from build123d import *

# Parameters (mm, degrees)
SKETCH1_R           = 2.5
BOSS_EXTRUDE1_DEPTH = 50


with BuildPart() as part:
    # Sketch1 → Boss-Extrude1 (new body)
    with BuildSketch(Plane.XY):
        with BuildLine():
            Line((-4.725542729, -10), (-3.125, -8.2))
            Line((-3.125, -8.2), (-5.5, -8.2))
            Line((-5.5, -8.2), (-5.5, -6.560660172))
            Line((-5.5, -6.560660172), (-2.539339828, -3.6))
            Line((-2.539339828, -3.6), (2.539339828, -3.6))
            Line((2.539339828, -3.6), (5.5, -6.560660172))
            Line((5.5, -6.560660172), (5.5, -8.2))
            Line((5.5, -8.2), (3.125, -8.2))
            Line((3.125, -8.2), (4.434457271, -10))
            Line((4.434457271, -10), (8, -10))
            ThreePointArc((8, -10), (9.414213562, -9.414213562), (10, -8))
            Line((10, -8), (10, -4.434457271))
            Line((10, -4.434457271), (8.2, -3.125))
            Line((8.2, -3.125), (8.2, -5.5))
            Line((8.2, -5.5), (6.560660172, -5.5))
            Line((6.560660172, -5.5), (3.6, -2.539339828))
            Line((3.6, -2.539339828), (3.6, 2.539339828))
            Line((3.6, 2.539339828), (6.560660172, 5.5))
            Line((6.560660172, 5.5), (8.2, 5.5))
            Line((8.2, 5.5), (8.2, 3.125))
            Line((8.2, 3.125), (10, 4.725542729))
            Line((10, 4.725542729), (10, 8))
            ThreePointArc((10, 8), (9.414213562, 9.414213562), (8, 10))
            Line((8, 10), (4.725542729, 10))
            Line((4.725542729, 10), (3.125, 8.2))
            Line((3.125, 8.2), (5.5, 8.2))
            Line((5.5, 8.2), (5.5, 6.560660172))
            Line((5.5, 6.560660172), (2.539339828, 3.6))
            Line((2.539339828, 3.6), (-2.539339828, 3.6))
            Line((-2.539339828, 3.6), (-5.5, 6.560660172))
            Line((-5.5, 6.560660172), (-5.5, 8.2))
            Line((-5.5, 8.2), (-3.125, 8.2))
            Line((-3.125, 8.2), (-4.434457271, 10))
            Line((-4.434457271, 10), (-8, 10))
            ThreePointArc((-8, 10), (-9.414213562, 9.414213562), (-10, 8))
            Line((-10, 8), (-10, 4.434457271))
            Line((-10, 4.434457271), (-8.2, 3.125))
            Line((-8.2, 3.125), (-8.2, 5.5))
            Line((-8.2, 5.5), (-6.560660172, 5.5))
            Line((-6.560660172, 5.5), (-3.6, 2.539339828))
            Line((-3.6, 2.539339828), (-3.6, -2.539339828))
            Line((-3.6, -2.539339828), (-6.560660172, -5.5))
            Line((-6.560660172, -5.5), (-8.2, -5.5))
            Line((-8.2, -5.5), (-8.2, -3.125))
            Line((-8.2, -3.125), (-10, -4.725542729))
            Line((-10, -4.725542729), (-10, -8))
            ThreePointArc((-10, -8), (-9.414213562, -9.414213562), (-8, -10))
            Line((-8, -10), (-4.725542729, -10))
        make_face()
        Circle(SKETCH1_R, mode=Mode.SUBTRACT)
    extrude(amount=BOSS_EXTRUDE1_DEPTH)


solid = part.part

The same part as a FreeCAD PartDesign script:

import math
import FreeCAD as App
import Part
import Sketcher
Q = App.Units.Quantity

doc = App.newDocument("Part")
body = doc.addObject("PartDesign::Body", "Body")

sketch1 = doc.addObject("Sketcher::SketchObject", "Sketch")
body.addObject(sketch1)
sketch1.AttachmentSupport = (doc.XY_Plane, [""])
sketch1.MapMode = "FlatFace"
sketch1.addGeometry([
    Part.LineSegment(App.Vector(-4.7, -10, 0), App.Vector(-3.1, -8.2, 0)),
    Part.LineSegment(App.Vector(-3.1, -8.2, 0), App.Vector(-5.5, -8.2, 0)),
    Part.LineSegment(App.Vector(-5.5, -8.2, 0), App.Vector(-5.5, -6.6, 0)),
    Part.LineSegment(App.Vector(-5.5, -6.6, 0), App.Vector(-2.5, -3.6, 0)),
    Part.LineSegment(App.Vector(-2.5, -3.6, 0), App.Vector(2.5, -3.6, 0)),
    Part.LineSegment(App.Vector(2.5, -3.6, 0), App.Vector(5.5, -6.6, 0)),
    Part.LineSegment(App.Vector(5.5, -6.6, 0), App.Vector(5.5, -8.2, 0)),
    Part.LineSegment(App.Vector(5.5, -8.2, 0), App.Vector(3.1, -8.2, 0)),
    Part.LineSegment(App.Vector(3.1, -8.2, 0), App.Vector(4.4, -10, 0)),
    Part.LineSegment(App.Vector(4.4, -10, 0), App.Vector(8, -10, 0)),
    Part.ArcOfCircle(Part.Circle(App.Vector(8, -8, 0), App.Vector(0, 0, 1), 2), math.radians(-90), math.radians(0)),
    Part.LineSegment(App.Vector(10, -8, 0), App.Vector(10, -4.4, 0)),
    Part.LineSegment(App.Vector(10, -4.4, 0), App.Vector(8.2, -3.1, 0)),
    Part.LineSegment(App.Vector(8.2, -3.1, 0), App.Vector(8.2, -5.5, 0)),
    Part.LineSegment(App.Vector(8.2, -5.5, 0), App.Vector(6.6, -5.5, 0)),
    Part.LineSegment(App.Vector(6.6, -5.5, 0), App.Vector(3.6, -2.5, 0)),
    Part.LineSegment(App.Vector(3.6, -2.5, 0), App.Vector(3.6, 2.5, 0)),
    Part.LineSegment(App.Vector(3.6, 2.5, 0), App.Vector(6.6, 5.5, 0)),
    Part.LineSegment(App.Vector(6.6, 5.5, 0), App.Vector(8.2, 5.5, 0)),
    Part.LineSegment(App.Vector(8.2, 5.5, 0), App.Vector(8.2, 3.1, 0)),
    Part.LineSegment(App.Vector(8.2, 3.1, 0), App.Vector(10, 4.7, 0)),
    Part.LineSegment(App.Vector(10, 4.7, 0), App.Vector(10, 8, 0)),
    Part.ArcOfCircle(Part.Circle(App.Vector(8, 8, 0), App.Vector(0, 0, 1), 2), math.radians(0), math.radians(90)),
    Part.LineSegment(App.Vector(8, 10, 0), App.Vector(4.7, 10, 0)),
    Part.LineSegment(App.Vector(4.7, 10, 0), App.Vector(3.1, 8.2, 0)),
    Part.LineSegment(App.Vector(3.1, 8.2, 0), App.Vector(5.5, 8.2, 0)),
    Part.LineSegment(App.Vector(5.5, 8.2, 0), App.Vector(5.5, 6.6, 0)),
    Part.LineSegment(App.Vector(5.5, 6.6, 0), App.Vector(2.5, 3.6, 0)),
    Part.LineSegment(App.Vector(2.5, 3.6, 0), App.Vector(-2.5, 3.6, 0)),
    Part.LineSegment(App.Vector(-2.5, 3.6, 0), App.Vector(-5.5, 6.6, 0)),
    Part.LineSegment(App.Vector(-5.5, 6.6, 0), App.Vector(-5.5, 8.2, 0)),
    Part.LineSegment(App.Vector(-5.5, 8.2, 0), App.Vector(-3.1, 8.2, 0)),
    Part.LineSegment(App.Vector(-3.1, 8.2, 0), App.Vector(-4.4, 10, 0)),
    Part.LineSegment(App.Vector(-4.4, 10, 0), App.Vector(-8, 10, 0)),
    Part.ArcOfCircle(Part.Circle(App.Vector(-8, 8, 0), App.Vector(0, 0, 1), 2), math.radians(90), math.radians(180)),
    Part.LineSegment(App.Vector(-10, 8, 0), App.Vector(-10, 4.4, 0)),
    Part.LineSegment(App.Vector(-10, 4.4, 0), App.Vector(-8.2, 3.1, 0)),
    Part.LineSegment(App.Vector(-8.2, 3.1, 0), App.Vector(-8.2, 5.5, 0)),
    Part.LineSegment(App.Vector(-8.2, 5.5, 0), App.Vector(-6.6, 5.5, 0)),
    Part.LineSegment(App.Vector(-6.6, 5.5, 0), App.Vector(-3.6, 2.5, 0)),
    Part.LineSegment(App.Vector(-3.6, 2.5, 0), App.Vector(-3.6, -2.5, 0)),
    Part.LineSegment(App.Vector(-3.6, -2.5, 0), App.Vector(-6.6, -5.5, 0)),
    Part.LineSegment(App.Vector(-6.6, -5.5, 0), App.Vector(-8.2, -5.5, 0)),
    Part.LineSegment(App.Vector(-8.2, -5.5, 0), App.Vector(-8.2, -3.1, 0)),
    Part.LineSegment(App.Vector(-8.2, -3.1, 0), App.Vector(-10, -4.7, 0)),
    Part.LineSegment(App.Vector(-10, -4.7, 0), App.Vector(-10, -8, 0)),
    Part.ArcOfCircle(Part.Circle(App.Vector(-8, -8, 0), App.Vector(0, 0, 1), 2), math.radians(-180), math.radians(-90)),
    Part.LineSegment(App.Vector(-8, -10, 0), App.Vector(-4.7, -10, 0)),
    Part.Circle(App.Vector(0, 0, 0), App.Vector(0, 0, 1), 2.5),
], False)
sketch1.addConstraint([
    Sketcher.Constraint("Coincident", 0, 2, 1, 1),
    Sketcher.Constraint("Coincident", 1, 2, 2, 1),
    Sketcher.Constraint("Coincident", 2, 2, 3, 1),
    Sketcher.Constraint("Coincident", 3, 2, 4, 1),
    Sketcher.Constraint("Coincident", 4, 2, 5, 1),
    Sketcher.Constraint("Coincident", 5, 2, 6, 1),
    Sketcher.Constraint("Coincident", 6, 2, 7, 1),
    Sketcher.Constraint("Coincident", 7, 2, 8, 1),
    Sketcher.Constraint("Coincident", 8, 2, 9, 1),
    Sketcher.Constraint("Tangent", 9, 2, 10, 1),
    Sketcher.Constraint("Tangent", 10, 2, 11, 1),
    Sketcher.Constraint("Coincident", 11, 2, 12, 1),
    Sketcher.Constraint("Coincident", 12, 2, 13, 1),
    Sketcher.Constraint("Coincident", 13, 2, 14, 1),
    Sketcher.Constraint("Coincident", 14, 2, 15, 1),
    Sketcher.Constraint("Coincident", 15, 2, 16, 1),
    Sketcher.Constraint("Coincident", 16, 2, 17, 1),
    Sketcher.Constraint("Coincident", 17, 2, 18, 1),
    Sketcher.Constraint("Coincident", 18, 2, 19, 1),
    Sketcher.Constraint("Coincident", 19, 2, 20, 1),
    Sketcher.Constraint("Coincident", 20, 2, 21, 1),
    Sketcher.Constraint("Tangent", 21, 2, 22, 1),
    Sketcher.Constraint("Tangent", 22, 2, 23, 1),
    Sketcher.Constraint("Coincident", 23, 2, 24, 1),
    Sketcher.Constraint("Coincident", 24, 2, 25, 1),
    Sketcher.Constraint("Coincident", 25, 2, 26, 1),
    Sketcher.Constraint("Coincident", 26, 2, 27, 1),
    Sketcher.Constraint("Coincident", 27, 2, 28, 1),
    Sketcher.Constraint("Coincident", 28, 2, 29, 1),
    Sketcher.Constraint("Coincident", 29, 2, 30, 1),
    Sketcher.Constraint("Coincident", 30, 2, 31, 1),
    Sketcher.Constraint("Coincident", 31, 2, 32, 1),
    Sketcher.Constraint("Coincident", 32, 2, 33, 1),
    Sketcher.Constraint("Tangent", 33, 2, 34, 1),
    Sketcher.Constraint("Tangent", 34, 2, 35, 1),
    Sketcher.Constraint("Coincident", 35, 2, 36, 1),
    Sketcher.Constraint("Coincident", 36, 2, 37, 1),
    Sketcher.Constraint("Coincident", 37, 2, 38, 1),
    Sketcher.Constraint("Coincident", 38, 2, 39, 1),
    Sketcher.Constraint("Coincident", 39, 2, 40, 1),
    Sketcher.Constraint("Coincident", 40, 2, 41, 1),
    Sketcher.Constraint("Coincident", 41, 2, 42, 1),
    Sketcher.Constraint("Coincident", 42, 2, 43, 1),
    Sketcher.Constraint("Coincident", 43, 2, 44, 1),
    Sketcher.Constraint("Coincident", 44, 2, 45, 1),
    Sketcher.Constraint("Tangent", 45, 2, 46, 1),
    Sketcher.Constraint("Tangent", 46, 2, 47, 1),
    Sketcher.Constraint("Coincident", 47, 2, 0, 1),
    Sketcher.Constraint("Horizontal", 1),
    Sketcher.Constraint("Vertical", 2),
    Sketcher.Constraint("Horizontal", 4),
    Sketcher.Constraint("Vertical", 6),
    Sketcher.Constraint("Horizontal", 7),
    Sketcher.Constraint("Horizontal", 9),
    Sketcher.Constraint("Vertical", 11),
    Sketcher.Constraint("Vertical", 13),
    Sketcher.Constraint("Horizontal", 14),
    Sketcher.Constraint("Vertical", 16),
    Sketcher.Constraint("Horizontal", 18),
    Sketcher.Constraint("Vertical", 19),
    Sketcher.Constraint("Vertical", 21),
    Sketcher.Constraint("Horizontal", 23),
    Sketcher.Constraint("Horizontal", 25),
    Sketcher.Constraint("Vertical", 26),
    Sketcher.Constraint("Horizontal", 28),
    Sketcher.Constraint("Vertical", 30),
    Sketcher.Constraint("Horizontal", 31),
    Sketcher.Constraint("Horizontal", 33),
    Sketcher.Constraint("Vertical", 35),
    Sketcher.Constraint("Vertical", 37),
    Sketcher.Constraint("Horizontal", 38),
    Sketcher.Constraint("Vertical", 40),
    Sketcher.Constraint("Horizontal", 42),
    Sketcher.Constraint("Vertical", 43),
    Sketcher.Constraint("Vertical", 45),
    Sketcher.Constraint("Horizontal", 47),
    Sketcher.Constraint("Coincident", 48, 3, -1, 1),
    Sketcher.Constraint("Equal", 10, 22),
    Sketcher.Constraint("Equal", 22, 34),
    Sketcher.Constraint("Equal", 34, 46),
    Sketcher.Constraint("Symmetric", 10, 3, 34, 3, -1, 1),
    Sketcher.Constraint("Symmetric", 22, 3, 46, 3, -1, 1),
    Sketcher.Constraint("Symmetric", 0, 2, 24, 2, -1, 1),
    Sketcher.Constraint("Symmetric", 2, 2, 26, 2, -1, 1),
    Sketcher.Constraint("Symmetric", 3, 2, 27, 2, -1, 1),
    Sketcher.Constraint("Symmetric", 5, 2, 29, 2, -1, 1),
    Sketcher.Constraint("Symmetric", 7, 2, 31, 2, -1, 1),
    Sketcher.Constraint("Symmetric", 12, 2, 36, 2, -1, 1),
    Sketcher.Constraint("Symmetric", 14, 2, 38, 2, -1, 1),
    Sketcher.Constraint("Symmetric", 15, 2, 39, 2, -1, 1),
    Sketcher.Constraint("Symmetric", 17, 2, 41, 2, -1, 1),
    Sketcher.Constraint("Symmetric", 19, 2, 43, 2, -1, 1),
    Sketcher.Constraint("Symmetric", 22, 3, 34, 3, -2),
    Sketcher.Constraint("Symmetric", 2, 2, 5, 2, -2),
    Sketcher.Constraint("Symmetric", 0, 2, 7, 2, -2),
    Sketcher.Constraint("Symmetric", 19, 2, 36, 2, -2),
    Sketcher.Constraint("Symmetric", 17, 2, 38, 2, -2),
    Sketcher.Constraint("Perpendicular", 3, 5),
    Sketcher.Constraint("Parallel", 5, 15),
    Sketcher.Constraint("Perpendicular", 15, 17),
    Sketcher.Constraint("Parallel", 0, 24),
    Sketcher.Constraint("Perpendicular", 27, 29),
    Sketcher.Constraint("Parallel", 8, 32),
    Sketcher.Constraint("Parallel", 12, 36),
    Sketcher.Constraint("Perpendicular", 39, 41),
    Sketcher.Constraint("Parallel", 20, 44),
    Sketcher.Constraint("Horizontal", 16, 2, 39, 2),
    Sketcher.Constraint("Equal", 42, 2),
    Sketcher.Constraint("Equal", 33, 11),
    Sketcher.Constraint("Equal", 31, 13),
    Sketcher.Constraint("Equal", 28, 16),
    Sketcher.Constraint("Equal", 47, 21),
    Sketcher.Constraint("Equal", 8, 12),
    Sketcher.Constraint("Equal", 5, 15),
    Sketcher.Constraint("Equal", 0, 20),
    Sketcher.Constraint("Diameter", 48, Q("5 mm")),
    Sketcher.Constraint("Radius", 10, Q("2 mm")),
    Sketcher.Constraint("DistanceX", -1, 1, 10, 3, Q("8 mm")),
    Sketcher.Constraint("DistanceY", 0, 2, -1, 1, Q("8.2 mm")),
    Sketcher.Constraint("DistanceX", 1, 2, -1, 1, Q("5.5 mm")),
    Sketcher.Constraint("DistanceY", 3, 2, -1, 1, Q("3.6 mm")),
    Sketcher.Constraint("DistanceX", 1, 2, 1, 1, Q("2.375 mm")),
    Sketcher.Constraint("DistanceX", 4, 1, 4, 2, Q("5.07868 mm")),
    Sketcher.Constraint("Distance", 0, Q("2.40868 mm")),
    Sketcher.Constraint("Distance", 8, Q("2.225911 mm")),
])
pad1 = doc.addObject("PartDesign::Pad", "Pad")
body.addObject(pad1)
pad1.Profile = sketch1
pad1.Length = 50

doc.recompute()
